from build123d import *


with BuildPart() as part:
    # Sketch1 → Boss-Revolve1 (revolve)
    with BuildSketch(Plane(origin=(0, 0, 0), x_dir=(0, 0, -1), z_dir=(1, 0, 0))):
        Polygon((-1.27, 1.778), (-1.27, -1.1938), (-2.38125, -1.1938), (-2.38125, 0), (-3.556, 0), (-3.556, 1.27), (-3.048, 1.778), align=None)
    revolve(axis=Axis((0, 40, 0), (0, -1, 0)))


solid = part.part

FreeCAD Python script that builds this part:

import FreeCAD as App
import Part
import Sketcher

V = App.Vector
Q = App.Units.Quantity


def add_polygon(sketch, points):
    """Adds a closed chain of lines whose ends are joined by coincident constraints."""
    first, n = sketch.GeometryCount, len(points)
    for a, b in zip(points, points[1:] + points[:1]):
        sketch.addGeometry(Part.LineSegment(App.Vector(*a, 0), App.Vector(*b, 0)), False)
    for i in range(n):
        sketch.addConstraint(Sketcher.Constraint("Coincident", first + i, 2, first + (i + 1) % n, 1))

doc = App.newDocument("Part")
body = doc.addObject("PartDesign::Body", "Body")

# Sketch on YZ plane
sketch1 = doc.addObject("Sketcher::SketchObject", "Sketch")
body.addObject(sketch1)
sketch1.AttachmentSupport = (doc.YZ_Plane, [""])
sketch1.MapMode = "FlatFace"
add_polygon(sketch1, [(-1.2, 1.3), (1.8, 1.3), (1.8, 3), (1.3, 3.6), (0, 3.6), (0, 2.4), (-1.2, 2.4)])  # lines 0-6
sketch1.addConstraint(Sketcher.Constraint("Horizontal", 0))
sketch1.addConstraint(Sketcher.Constraint("Vertical", 1))
sketch1.addConstraint(Sketcher.Constraint("Horizontal", 3))
sketch1.addConstraint(Sketcher.Constraint("Vertical", 4))
sketch1.addConstraint(Sketcher.Constraint("Horizontal", 5))
sketch1.addConstraint(Sketcher.Constraint("Vertical", 6))
sketch1.addConstraint(Sketcher.Constraint("PointOnObject", 3, 2, -2))
sketch1.addConstraint(Sketcher.Constraint("Angle", 2, Q("135 deg")))
sketch1.addConstraint(Sketcher.Constraint("DistanceX", 3, 2, 3, 1, Q("0.05 in")))
sketch1.addConstraint(Sketcher.Constraint("DistanceY", 1, 1, 1, 2, Q("0.07 in")))
sketch1.addConstraint(Sketcher.Constraint("DistanceX", 0, 1, 0, 2, Q("0.117 in")))
sketch1.addConstraint(Sketcher.Constraint("DistanceX", 5, 2, 5, 1, Q("0.047 in")))
sketch1.addConstraint(Sketcher.Constraint("DistanceY", -1, 1, 0, 2, Q("0.05 in")))
sketch1.addConstraint(Sketcher.Constraint("DistanceY", -1, 1, 4, 2, Q("0.09375 in")))
revolution = doc.addObject("PartDesign::Revolution", "Revolution")
body.addObject(revolution)
revolution.Profile = sketch1
revolution.ReferenceAxis = (sketch1, ["H_Axis"])
revolution.Angle = 360

doc.recompute()
